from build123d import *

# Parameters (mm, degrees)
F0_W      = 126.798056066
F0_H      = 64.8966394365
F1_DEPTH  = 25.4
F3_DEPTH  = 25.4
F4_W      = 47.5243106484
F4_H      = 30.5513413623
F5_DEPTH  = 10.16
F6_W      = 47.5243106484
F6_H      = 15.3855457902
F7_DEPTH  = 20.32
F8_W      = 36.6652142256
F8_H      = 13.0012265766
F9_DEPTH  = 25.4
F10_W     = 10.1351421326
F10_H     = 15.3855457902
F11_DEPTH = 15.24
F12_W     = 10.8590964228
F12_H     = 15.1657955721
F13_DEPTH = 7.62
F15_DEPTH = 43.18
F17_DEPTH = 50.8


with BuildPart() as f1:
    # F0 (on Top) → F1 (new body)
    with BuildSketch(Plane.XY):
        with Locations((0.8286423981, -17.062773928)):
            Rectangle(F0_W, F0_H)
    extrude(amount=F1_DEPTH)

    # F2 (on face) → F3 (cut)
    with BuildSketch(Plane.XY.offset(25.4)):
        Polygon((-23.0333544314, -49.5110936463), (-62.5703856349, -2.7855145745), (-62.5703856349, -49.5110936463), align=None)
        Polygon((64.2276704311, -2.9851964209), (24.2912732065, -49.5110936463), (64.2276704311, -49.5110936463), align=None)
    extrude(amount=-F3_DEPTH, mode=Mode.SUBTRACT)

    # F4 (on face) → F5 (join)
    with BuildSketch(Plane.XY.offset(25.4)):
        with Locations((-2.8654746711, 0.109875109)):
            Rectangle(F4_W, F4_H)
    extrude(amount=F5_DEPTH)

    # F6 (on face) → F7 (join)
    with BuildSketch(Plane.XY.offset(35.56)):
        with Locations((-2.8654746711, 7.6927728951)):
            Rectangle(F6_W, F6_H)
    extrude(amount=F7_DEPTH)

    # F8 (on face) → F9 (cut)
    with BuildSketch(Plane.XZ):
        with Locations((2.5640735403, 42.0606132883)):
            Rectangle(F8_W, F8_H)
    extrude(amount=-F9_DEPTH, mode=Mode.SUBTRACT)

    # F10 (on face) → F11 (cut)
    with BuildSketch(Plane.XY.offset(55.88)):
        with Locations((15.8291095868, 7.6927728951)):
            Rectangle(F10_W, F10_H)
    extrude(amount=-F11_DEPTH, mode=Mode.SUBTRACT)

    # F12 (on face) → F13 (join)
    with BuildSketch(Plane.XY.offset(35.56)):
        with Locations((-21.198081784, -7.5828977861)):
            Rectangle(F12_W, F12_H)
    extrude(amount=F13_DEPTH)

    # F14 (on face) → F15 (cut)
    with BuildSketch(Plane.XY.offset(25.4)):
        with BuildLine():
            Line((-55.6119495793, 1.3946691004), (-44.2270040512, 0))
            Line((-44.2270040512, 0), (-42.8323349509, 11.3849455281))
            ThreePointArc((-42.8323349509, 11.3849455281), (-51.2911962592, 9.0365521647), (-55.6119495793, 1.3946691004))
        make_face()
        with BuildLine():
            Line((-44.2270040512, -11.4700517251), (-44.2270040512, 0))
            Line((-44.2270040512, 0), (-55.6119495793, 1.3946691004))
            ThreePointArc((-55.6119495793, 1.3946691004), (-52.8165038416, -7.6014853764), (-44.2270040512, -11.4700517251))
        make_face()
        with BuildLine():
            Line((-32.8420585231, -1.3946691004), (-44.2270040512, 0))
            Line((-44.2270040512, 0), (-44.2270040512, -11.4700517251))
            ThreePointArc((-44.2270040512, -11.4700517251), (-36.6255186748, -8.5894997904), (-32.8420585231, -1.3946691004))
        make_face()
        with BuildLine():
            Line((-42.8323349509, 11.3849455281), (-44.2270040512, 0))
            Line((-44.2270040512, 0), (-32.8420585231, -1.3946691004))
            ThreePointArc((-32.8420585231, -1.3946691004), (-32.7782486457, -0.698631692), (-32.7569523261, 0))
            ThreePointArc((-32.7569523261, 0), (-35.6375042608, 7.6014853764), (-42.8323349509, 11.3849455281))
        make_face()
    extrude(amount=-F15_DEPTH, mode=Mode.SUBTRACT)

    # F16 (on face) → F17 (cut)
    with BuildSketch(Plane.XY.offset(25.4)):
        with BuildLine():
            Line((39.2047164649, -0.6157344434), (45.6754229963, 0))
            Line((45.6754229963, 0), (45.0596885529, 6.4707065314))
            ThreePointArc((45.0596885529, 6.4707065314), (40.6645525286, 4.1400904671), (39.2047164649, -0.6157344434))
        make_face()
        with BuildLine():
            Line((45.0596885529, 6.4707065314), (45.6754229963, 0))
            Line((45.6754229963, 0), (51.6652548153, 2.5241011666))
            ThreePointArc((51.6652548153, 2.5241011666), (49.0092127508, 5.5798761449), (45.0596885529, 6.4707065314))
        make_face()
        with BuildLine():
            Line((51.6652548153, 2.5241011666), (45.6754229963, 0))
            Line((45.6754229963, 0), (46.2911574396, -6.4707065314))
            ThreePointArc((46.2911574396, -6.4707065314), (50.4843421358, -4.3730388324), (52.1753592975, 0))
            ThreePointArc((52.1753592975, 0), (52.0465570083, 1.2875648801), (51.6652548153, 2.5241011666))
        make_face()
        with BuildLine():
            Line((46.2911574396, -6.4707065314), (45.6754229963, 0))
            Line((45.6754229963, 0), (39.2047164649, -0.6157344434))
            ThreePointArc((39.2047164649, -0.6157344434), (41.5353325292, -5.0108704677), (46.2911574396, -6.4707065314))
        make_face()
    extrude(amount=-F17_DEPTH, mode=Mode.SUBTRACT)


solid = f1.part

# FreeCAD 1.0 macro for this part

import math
import FreeCAD as App
import Part
import Sketcher

V = App.Vector
Q = App.Units.Quantity


def add_polygon(sketch, points):
    """Adds a closed chain of lines whose ends are joined by coincident constraints."""
    first, n = sketch.GeometryCount, len(points)
    for a, b in zip(points, points[1:] + points[:1]):
        sketch.addGeometry(Part.LineSegment(App.Vector(*a, 0), App.Vector(*b, 0)), False)
    for i in range(n):
        sketch.addConstraint(Sketcher.Constraint("Coincident", first + i, 2, first + (i + 1) % n, 1))

doc = App.newDocument("Part")
body = doc.addObject("PartDesign::Body", "Body")

sketch1 = body.newObject("Sketcher::SketchObject", "Sketch")
sketch1.AttachmentSupport = (doc.getObject("XY_Plane"), [""])
sketch1.MapMode = "FlatFace"
add_polygon(sketch1, [(-62.570386, 15.385546), (-62.570386, -49.511094), (64.22767, -49.511094), (64.22767, 15.385546)])
sketch1.addConstraint([
    Sketcher.Constraint("Vertical", 0),
    Sketcher.Constraint("Horizontal", 1),
    Sketcher.Constraint("Vertical", 2),
    Sketcher.Constraint("Horizontal", 3),
    Sketcher.Constraint("DistanceY", 0, 2, 0, 1, Q("64.896639 mm")),
    Sketcher.Constraint("DistanceX", 1, 1, 1, 2, Q("126.798056 mm")),
    Sketcher.Constraint("DistanceX", -1, 1, 1, 2, Q("64.22767 mm")),
    Sketcher.Constraint("DistanceY", 0, 2, -1, 1, Q("49.511094 mm")),
])
pad1 = body.newObject("PartDesign::Pad", "Pad")
pad1.Profile = sketch1
pad1.Length = Q("1 in")

sketch2 = body.newObject("Sketcher::SketchObject", "Sketch001")
sketch2.AttachmentSupport = (doc.getObject("XY_Plane"), [""])
sketch2.MapMode = "FlatFace"
sketch2.AttachmentOffset = App.Placement(V(0, 0, 1 * 25.4), App.Rotation())
add_polygon(sketch2, [(-23.033354, -49.511094), (-62.570386, -2.785515), (-62.570386, -49.511094)])
add_polygon(sketch2, [(64.22767, -2.985196), (24.291273, -49.511094), (64.22767, -49.511094)])
sketch2.addConstraint([
    Sketcher.Constraint("Vertical", 1),
    Sketcher.Constraint("Horizontal", 2),
    Sketcher.Constraint("Horizontal", 4),
    Sketcher.Constraint("Vertical", 5),
    Sketcher.Constraint("Horizontal", 2, 2, 3, 2),
    Sketcher.Constraint("DistanceX", 2, 1, 2, 2, Q("39.537031 mm")),
    Sketcher.Constraint("DistanceY", 1, 2, 1, 1, Q("46.725579 mm")),
    Sketcher.Constraint("DistanceX", 4, 1, 4, 2, Q("39.936397 mm")),
    Sketcher.Constraint("DistanceY", 5, 1, 5, 2, Q("46.525897 mm")),
    Sketcher.Constraint("DistanceX", -1, 1, 4, 2, Q("64.22767 mm")),
    Sketcher.Constraint("DistanceX", 1, 2, 3, 2, Q("86.861659 mm")),
    Sketcher.Constraint("DistanceY", 0, 2, -1, 1, Q("2.785515 mm")),
])
pocket1 = body.newObject("PartDesign::Pocket", "Pocket")
pocket1.Profile = sketch2
pocket1.Length = Q("1 in")

sketch3 = body.newObject("Sketcher::SketchObject", "Sketch002")
sketch3.AttachmentSupport = (doc.getObject("XY_Plane"), [""])
sketch3.MapMode = "FlatFace"
sketch3.AttachmentOffset = App.Placement(V(0, 0, 1 * 25.4), App.Rotation())
add_polygon(sketch3, [(-26.62763, 15.385546), (-26.62763, -15.165796), (20.896681, -15.165796), (20.896681, 15.385546)])
sketch3.addConstraint([
    Sketcher.Constraint("Vertical", 0),
    Sketcher.Constraint("Horizontal", 1),
    Sketcher.Constraint("Vertical", 2),
    Sketcher.Constraint("Horizontal", 3),
    Sketcher.Constraint("DistanceX", 1, 1, 1, 2, Q("47.524311 mm")),
    Sketcher.Constraint("DistanceY", 0, 2, 0, 1, Q("30.551341 mm")),
    Sketcher.Constraint("DistanceX", 0, 2, -1, 1, Q("26.62763 mm")),
    Sketcher.Constraint("DistanceY", 0, 2, -1, 1, Q("15.165796 mm")),
])
pad2 = body.newObject("PartDesign::Pad", "Pad001")
pad2.Profile = sketch3
pad2.Length = Q("0.4 in")

sketch4 = body.newObject("Sketcher::SketchObject", "Sketch003")
sketch4.AttachmentSupport = (doc.getObject("XY_Plane"), [""])
sketch4.MapMode = "FlatFace"
sketch4.AttachmentOffset = App.Placement(V(0, 0, 1.4 * 25.4), App.Rotation())
add_polygon(sketch4, [(-26.62763, 15.385546), (-26.62763, 0), (20.896681, 0), (20.896681, 15.385546)])
sketch4.addConstraint([
    Sketcher.Constraint("Vertical", 0),
    Sketcher.Constraint("Horizontal", 1),
    Sketcher.Constraint("Vertical", 2),
    Sketcher.Constraint("Horizontal", 3),
    Sketcher.Constraint("PointOnObject", 0, 2, -1),
    Sketcher.Constraint("DistanceX", 1, 1, 1, 2, Q("47.524311 mm")),
    Sketcher.Constraint("DistanceY", 0, 2, 0, 1, Q("15.385546 mm")),
    Sketcher.Constraint("DistanceX", 0, 2, -1, 1, Q("26.62763 mm")),
])
pad3 = body.newObject("PartDesign::Pad", "Pad002")
pad3.Profile = sketch4
pad3.Length = Q("0.8 in")

sketch5 = body.newObject("Sketcher::SketchObject", "Sketch004")
sketch5.AttachmentSupport = (doc.getObject("XZ_Plane"), [""])
sketch5.MapMode = "FlatFace"
add_polygon(sketch5, [(-15.768534, 48.561227), (-15.768534, 35.56), (20.896681, 35.56), (20.896681, 48.561227)])
sketch5.addConstraint([
    Sketcher.Constraint("Vertical", 0),
    Sketcher.Constraint("Horizontal", 1),
    Sketcher.Constraint("Vertical", 2),
    Sketcher.Constraint("Horizontal", 3),
    Sketcher.Constraint("DistanceY", -1, 1, 0, 2, Q("1.4 in")),
    Sketcher.Constraint("DistanceX", 1, 1, 1, 2, Q("36.665214 mm")),
    Sketcher.Constraint("DistanceY", 0, 2, 0, 1, Q("13.001227 mm")),
    Sketcher.Constraint("DistanceX", -1, 1, 1, 2, Q("20.896681 mm")),
])
pocket2 = body.newObject("PartDesign::Pocket", "Pocket001")
pocket2.Profile = sketch5
pocket2.Length = Q("1 in")

sketch6 = body.newObject("Sketcher::SketchObject", "Sketch005")
sketch6.AttachmentSupport = (doc.getObject("XY_Plane"), [""])
sketch6.MapMode = "FlatFace"
sketch6.AttachmentOffset = App.Placement(V(0, 0, 2.2 * 25.4), App.Rotation())
add_polygon(sketch6, [(10.761539, 15.385546), (10.761539, 0), (20.896681, 0), (20.896681, 15.385546)])
sketch6.addConstraint([
    Sketcher.Constraint("Vertical", 0),
    Sketcher.Constraint("Horizontal", 1),
    Sketcher.Constraint("Vertical", 2),
    Sketcher.Constraint("Horizontal", 3),
    Sketcher.Constraint("PointOnObject", 0, 2, -1),
    Sketcher.Constraint("DistanceX", 1, 1, 1, 2, Q("10.135142 mm")),
    Sketcher.Constraint("DistanceY", 0, 2, 0, 1, Q("15.385546 mm")),
    Sketcher.Constraint("DistanceX", -1, 1, 0, 2, Q("10.761539 mm")),
])
pocket3 = body.newObject("PartDesign::Pocket", "Pocket002")
pocket3.Profile = sketch6
pocket3.Length = Q("0.6 in")

sketch7 = body.newObject("Sketcher::SketchObject", "Sketch006")
sketch7.AttachmentSupport = (doc.getObject("XY_Plane"), [""])
sketch7.MapMode = "FlatFace"
sketch7.AttachmentOffset = App.Placement(V(0, 0, 1.4 * 25.4), App.Rotation())
add_polygon(sketch7, [(-26.62763, 0), (-26.62763, -15.165796), (-15.768534, -15.165796), (-15.768534, 0)])
sketch7.addConstraint([
    Sketcher.Constraint("Vertical", 0),
    Sketcher.Constraint("Horizontal", 1),
    Sketcher.Constraint("Vertical", 2),
    Sketcher.Constraint("Horizontal", 3),
    Sketcher.Constraint("PointOnObject", 2, 2, -1),
    Sketcher.Constraint("DistanceX", 1, 1, 1, 2, Q("10.859096 mm")),
    Sketcher.Constraint("DistanceY", 0, 2, 0, 1, Q("15.165796 mm")),
    Sketcher.Constraint("DistanceX", 0, 2, -1, 1, Q("26.62763 mm")),
])
pad4 = body.newObject("PartDesign::Pad", "Pad003")
pad4.Profile = sketch7
pad4.Length = Q("0.3 in")

sketch8 = body.newObject("Sketcher::SketchObject", "Sketch007")
sketch8.AttachmentSupport = (doc.getObject("XY_Plane"), [""])
sketch8.MapMode = "FlatFace"
sketch8.AttachmentOffset = App.Placement(V(0, 0, 1 * 25.4), App.Rotation())
sketch8.addGeometry([
    Part.ArcOfCircle(Part.Circle(V(-44.227004, 0, 0), V(0, 0, 1), 11.470052), math.radians(83.015997), math.radians(173.015997)),
    Part.ArcOfCircle(Part.Circle(V(-44.227004, 0, 0), V(0, 0, 1), 11.470052), math.radians(173.015997), math.radians(270)),
    Part.ArcOfCircle(Part.Circle(V(-44.227004, 0, 0), V(0, 0, 1), 11.470052), math.radians(-90), math.radians(-6.984003)),
    Part.ArcOfCircle(Part.Circle(V(-44.227004, 0, 0), V(0, 0, 1), 11.470052), math.radians(-6.984003), math.radians(0)),
    Part.ArcOfCircle(Part.Circle(V(-44.227004, 0, 0), V(0, 0, 1), 11.470052), math.radians(0), math.radians(83.015997)),
], False)
sketch8.addConstraint([
    Sketcher.Constraint("Tangent", 0, 2, 1, 1),
    Sketcher.Constraint("Tangent", 1, 2, 2, 1),
    Sketcher.Constraint("Tangent", 2, 2, 3, 1),
    Sketcher.Constraint("Tangent", 3, 2, 4, 1),
    Sketcher.Constraint("Tangent", 4, 2, 0, 1),
    Sketcher.Constraint("Coincident", 2, 3, 0, 3),
    Sketcher.Constraint("PointOnObject", 0, 3, -1),
    Sketcher.Constraint("PointOnObject", 3, 2, -1),
    Sketcher.Constraint("Vertical", 4, 3, 1, 2),
    Sketcher.Constraint("Radius", 0, Q("11.470052 mm")),
    Sketcher.Constraint("DistanceX", 0, 2, -1, 1, Q("55.61195 mm")),
    Sketcher.Constraint("DistanceY", -1, 1, 0, 2, Q("1.394669 mm")),
    Sketcher.Constraint("DistanceX", 2, 2, -1, 1, Q("32.842059 mm")),
    Sketcher.Constraint("DistanceX", 0, 3, 4, 2, Q("1.394669 mm")),
])
pocket4 = body.newObject("PartDesign::Pocket", "Pocket003")
pocket4.Profile = sketch8
pocket4.Length = Q("1.7 in")

sketch9 = body.newObject("Sketcher::SketchObject", "Sketch008")
sketch9.AttachmentSupport = (doc.getObject("XY_Plane"), [""])
sketch9.MapMode = "FlatFace"
sketch9.AttachmentOffset = App.Placement(V(0, 0, 1 * 25.4), App.Rotation())
sketch9.addGeometry([
    Part.ArcOfCircle(Part.Circle(V(45.675423, 0, 0), V(0, 0, 1), 6.499936), math.radians(-84.56426), math.radians(0)),
    Part.ArcOfCircle(Part.Circle(V(45.675423, 0, 0), V(0, 0, 1), 6.499936), math.radians(0), math.radians(22.850444)),
    Part.ArcOfCircle(Part.Circle(V(45.675423, 0, 0), V(0, 0, 1), 6.499936), math.radians(22.850444), math.radians(95.43574)),
    Part.ArcOfCircle(Part.Circle(V(45.675423, 0, 0), V(0, 0, 1), 6.499936), math.radians(95.43574), math.radians(185.43574)),
    Part.ArcOfCircle(Part.Circle(V(45.675423, 0, 0), V(0, 0, 1), 6.499936), math.radians(-174.56426), math.radians(-84.56426)),
], False)
sketch9.addConstraint([
    Sketcher.Constraint("Tangent", 0, 2, 1, 1),
    Sketcher.Constraint("Tangent", 1, 2, 2, 1),
    Sketcher.Constraint("Tangent", 2, 2, 3, 1),
    Sketcher.Constraint("Tangent", 3, 2, 4, 1),
    Sketcher.Constraint("Tangent", 4, 2, 0, 1),
    Sketcher.Constraint("Coincident", 2, 3, 0, 3),
    Sketcher.Constraint("PointOnObject", 0, 3, -1),
    Sketcher.Constraint("PointOnObject", 0, 2, -1),
    Sketcher.Constraint("Radius", 0, Q("6.499936 mm")),
    Sketcher.Constraint("DistanceY", -1, 1, 1, 2, Q("2.524101 mm")),
    Sketcher.Constraint("DistanceX", -1, 1, 0, 2, Q("52.175359 mm")),
    Sketcher.Constraint("DistanceX", -1, 1, 2, 2, Q("45.059689 mm")),
    Sketcher.Constraint("DistanceX", -1, 1, 3, 2, Q("39.204716 mm")),
    Sketcher.Constraint("DistanceX", -1, 1, 4, 2, Q("46.291157 mm")),
])
pocket5 = body.newObject("PartDesign::Pocket", "Pocket004")
pocket5.Profile = sketch9
pocket5.Length = Q("2 in")

doc.recompute()
